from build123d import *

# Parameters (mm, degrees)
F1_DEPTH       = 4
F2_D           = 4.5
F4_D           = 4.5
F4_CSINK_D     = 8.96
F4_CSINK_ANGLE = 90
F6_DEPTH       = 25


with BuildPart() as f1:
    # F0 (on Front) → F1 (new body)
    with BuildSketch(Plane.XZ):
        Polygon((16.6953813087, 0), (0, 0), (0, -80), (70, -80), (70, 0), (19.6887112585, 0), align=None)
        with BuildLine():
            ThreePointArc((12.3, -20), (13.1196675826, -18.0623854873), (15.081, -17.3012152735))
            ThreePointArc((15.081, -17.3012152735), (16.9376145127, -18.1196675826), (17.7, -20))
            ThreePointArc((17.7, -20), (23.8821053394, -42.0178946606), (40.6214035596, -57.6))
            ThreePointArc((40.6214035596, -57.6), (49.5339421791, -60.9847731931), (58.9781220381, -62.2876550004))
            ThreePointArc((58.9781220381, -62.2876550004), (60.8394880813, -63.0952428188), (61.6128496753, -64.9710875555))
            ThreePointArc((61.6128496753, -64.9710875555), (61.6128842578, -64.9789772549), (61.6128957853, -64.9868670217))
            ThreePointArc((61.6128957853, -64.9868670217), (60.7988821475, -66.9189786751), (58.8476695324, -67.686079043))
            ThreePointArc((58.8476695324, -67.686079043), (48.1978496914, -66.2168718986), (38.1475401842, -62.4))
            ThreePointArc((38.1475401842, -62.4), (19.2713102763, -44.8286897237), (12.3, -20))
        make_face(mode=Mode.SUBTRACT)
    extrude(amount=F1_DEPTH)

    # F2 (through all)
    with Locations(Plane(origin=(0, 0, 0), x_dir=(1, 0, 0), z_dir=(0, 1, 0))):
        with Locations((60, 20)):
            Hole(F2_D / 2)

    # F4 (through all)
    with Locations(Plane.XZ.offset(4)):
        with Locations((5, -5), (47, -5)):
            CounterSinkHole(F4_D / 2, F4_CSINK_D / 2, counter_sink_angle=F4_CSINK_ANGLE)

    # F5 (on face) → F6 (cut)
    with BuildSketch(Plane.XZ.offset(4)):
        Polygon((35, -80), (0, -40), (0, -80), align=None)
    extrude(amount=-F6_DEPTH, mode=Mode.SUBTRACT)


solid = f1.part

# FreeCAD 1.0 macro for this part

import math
import FreeCAD as App
import Part
import Sketcher

V = App.Vector


def add_polygon(sketch, points):
    """Adds a closed chain of lines whose ends are joined by coincident constraints."""
    first, n = sketch.GeometryCount, len(points)
    for a, b in zip(points, points[1:] + points[:1]):
        sketch.addGeometry(Part.LineSegment(App.Vector(*a, 0), App.Vector(*b, 0)), False)
    for i in range(n):
        sketch.addConstraint(Sketcher.Constraint("Coincident", first + i, 2, first + (i + 1) % n, 1))

doc = App.newDocument("Part")
body = doc.addObject("PartDesign::Body", "Body")

# Sketch on XZ plane
sketch1 = body.newObject("Sketcher::SketchObject", "Sketch")
sketch1.AttachmentSupport = (doc.getObject("XZ_Plane"), [""])
sketch1.MapMode = "FlatFace"
add_polygon(sketch1, [(0, 0), (0, -80), (70, -80), (70, 0)])  # lines 0-3
sketch1.addGeometry(Part.ArcOfCircle(Part.Circle(V(60, -20, 0), V(0, 0, 1), 47.7), math.radians(180), math.radians(242.733956)), False)  # 4
sketch1.addGeometry(Part.ArcOfCircle(Part.Circle(V(15, -20, 0), V(0, 0, 1), 2.7), math.radians(88.280869), math.radians(180)), False)  # 5
sketch1.addGeometry(Part.ArcOfCircle(Part.Circle(V(15, -20, 0), V(0, 0, 1), 2.7), math.radians(0), math.radians(88.280869)), False)  # 6
sketch1.addGeometry(Part.ArcOfCircle(Part.Circle(V(60, -20, 0), V(0, 0, 1), 42.3), math.radians(180), math.radians(268.615721)), False)  # 7
sketch1.addGeometry(Part.ArcOfCircle(Part.Circle(V(58.912896, -64.986867, 0), V(0, 0, 1), 2.7), math.radians(0.334853), math.radians(88.615721)), False)  # 8
sketch1.addGeometry(Part.ArcOfCircle(Part.Circle(V(58.912905, -64.986867, 0), V(0, 0, 1), 2.699991), math.radians(0), math.radians(0.334853)), False)  # 9
sketch1.addGeometry(Part.ArcOfCircle(Part.Circle(V(58.912896, -64.986867, 0), V(0, 0, 1), 2.7), math.radians(-91.384279), math.radians(0)), False)  # 10
sketch1.addGeometry(Part.ArcOfCircle(Part.Circle(V(60, -20, 0), V(0, 0, 1), 47.7), math.radians(-117.266044), math.radians(-91.384279)), False)  # 11
sketch1.addConstraint([
    Sketcher.Constraint("Tangent", 4, 1, 5, 2),
    Sketcher.Constraint("Tangent", 5, 1, 6, 2),
    Sketcher.Constraint("Tangent", 6, 1, 7, 1),
    Sketcher.Constraint("Tangent", 7, 2, 8, 2),
    Sketcher.Constraint("Tangent", 8, 1, 9, 2),
    Sketcher.Constraint("Tangent", 9, 1, 10, 2),
    Sketcher.Constraint("Tangent", 10, 1, 11, 2),
    Sketcher.Constraint("Tangent", 11, 1, 4, 2),
    Sketcher.Constraint("Vertical", 0),
    Sketcher.Constraint("Horizontal", 1),
    Sketcher.Constraint("Vertical", 2),
    Sketcher.Constraint("Horizontal", 3),
    Sketcher.Constraint("Coincident", 3, 2, -1, 1),
    Sketcher.Constraint("Coincident", 7, 3, 4, 3),
    Sketcher.Constraint("Coincident", 10, 3, 8, 3),
    Sketcher.Constraint("Equal", 5, 6),
    Sketcher.Constraint("Equal", 6, 8),
    Sketcher.Constraint("Horizontal", 4, 3, 5, 3),
    Sketcher.Constraint("Horizontal", 10, 3, 9, 1),
    Sketcher.Constraint("Radius", 4, 47.7),
    Sketcher.Constraint("Radius", 5, 2.7),
    Sketcher.Constraint("DistanceX", 1, 1, 1, 2, 70.0),
    Sketcher.Constraint("DistanceY", 0, 2, 0, 1, 80.0),
    Sketcher.Constraint("DistanceX", -1, 1, 4, 3, 60.0),
    Sketcher.Constraint("DistanceY", 4, 3, -1, 1, 20.0),
    Sketcher.Constraint("DistanceY", 11, 1, -1, 1, 62.4),
    Sketcher.Constraint("DistanceX", -1, 1, 5, 1, 15.081),
    Sketcher.Constraint("DistanceX", -1, 1, 8, 1, 61.61285),
    Sketcher.Constraint("DistanceX", -1, 1, 10, 1, 58.84767),
])
pad1 = body.newObject("PartDesign::Pad", "Pad")
pad1.Profile = sketch1
pad1.Length = 4

# Sketch on XZ plane
sketch2 = body.newObject("Sketcher::SketchObject", "Sketch001")
sketch2.AttachmentSupport = (doc.getObject("XZ_Plane"), [""])
sketch2.MapMode = "FlatFace"
sketch2.addGeometry(Part.Circle(V(60, -20, 0), V(0, 0, 1), 2.2), False)
sketch2.addConstraint([
    Sketcher.Constraint("Diameter", 0, 4.5),
    Sketcher.Constraint("DistanceX", -1, 1, 0, 3, 60.0),
    Sketcher.Constraint("DistanceY", 0, 3, -1, 1, 20.0),
])
doc.recompute()
hole = body.newObject("PartDesign::Hole", "Hole")
hole.Profile = sketch2
hole.ThreadType = "None"
hole.Diameter = 4.5
hole.DepthType = "ThroughAll"
hole.Reversed = True

# Sketch on XZ plane
sketch3 = body.newObject("Sketcher::SketchObject", "Sketch002")
sketch3.AttachmentSupport = (doc.getObject("XZ_Plane"), [""])
sketch3.MapMode = "FlatFace"
sketch3.AttachmentOffset = App.Placement(V(0, 0, 4), App.Rotation())
sketch3.addGeometry([
    Part.Circle(V(5, -5, 0), V(0, 0, 1), 2.2),
    Part.Circle(V(47, -5, 0), V(0, 0, 1), 2.2),
], False)
sketch3.addConstraint([
    Sketcher.Constraint("Equal", 0, 1),
    Sketcher.Constraint("Horizontal", 0, 3, 1, 3),
    Sketcher.Constraint("Diameter", 0, 4.5),
    Sketcher.Constraint("DistanceX", -1, 1, 0, 3, 5.0),
    Sketcher.Constraint("DistanceY", 0, 3, -1, 1, 5.0),
    Sketcher.Constraint("DistanceX", -1, 1, 1, 3, 47.0),
])
doc.recompute()
hole2 = body.newObject("PartDesign::Hole", "Hole001")
hole2.Profile = sketch3
hole2.ThreadType = "None"
hole2.Diameter = 4.5
hole2.DepthType = "ThroughAll"
hole2.HoleCutType = "Countersink"
hole2.HoleCutDiameter = 8.96
hole2.HoleCutCountersinkAngle = 90

# Sketch on XZ plane
sketch4 = body.newObject("Sketcher::SketchObject", "Sketch003")
sketch4.AttachmentSupport = (doc.getObject("XZ_Plane"), [""])
sketch4.MapMode = "FlatFace"
sketch4.AttachmentOffset = App.Placement(V(0, 0, 4), App.Rotation())
add_polygon(sketch4, [(35, -80), (0, -40), (0, -80)])  # lines 0-2
sketch4.addConstraint([
    Sketcher.Constraint("Vertical", 1),
    Sketcher.Constraint("Horizontal", 2),
    Sketcher.Constraint("PointOnObject", 0, 2, -2),
    Sketcher.Constraint("DistanceX", 2, 1, 2, 2, 35.0),
    Sketcher.Constraint("DistanceY", 1, 2, 1, 1, 40.0),
    Sketcher.Constraint("DistanceY", 0, 2, -1, 1, 40.0),
])
pocket1 = body.newObject("PartDesign::Pocket", "Pocket")
pocket1.Profile = sketch4
pocket1.Length = 25

doc.recompute()
